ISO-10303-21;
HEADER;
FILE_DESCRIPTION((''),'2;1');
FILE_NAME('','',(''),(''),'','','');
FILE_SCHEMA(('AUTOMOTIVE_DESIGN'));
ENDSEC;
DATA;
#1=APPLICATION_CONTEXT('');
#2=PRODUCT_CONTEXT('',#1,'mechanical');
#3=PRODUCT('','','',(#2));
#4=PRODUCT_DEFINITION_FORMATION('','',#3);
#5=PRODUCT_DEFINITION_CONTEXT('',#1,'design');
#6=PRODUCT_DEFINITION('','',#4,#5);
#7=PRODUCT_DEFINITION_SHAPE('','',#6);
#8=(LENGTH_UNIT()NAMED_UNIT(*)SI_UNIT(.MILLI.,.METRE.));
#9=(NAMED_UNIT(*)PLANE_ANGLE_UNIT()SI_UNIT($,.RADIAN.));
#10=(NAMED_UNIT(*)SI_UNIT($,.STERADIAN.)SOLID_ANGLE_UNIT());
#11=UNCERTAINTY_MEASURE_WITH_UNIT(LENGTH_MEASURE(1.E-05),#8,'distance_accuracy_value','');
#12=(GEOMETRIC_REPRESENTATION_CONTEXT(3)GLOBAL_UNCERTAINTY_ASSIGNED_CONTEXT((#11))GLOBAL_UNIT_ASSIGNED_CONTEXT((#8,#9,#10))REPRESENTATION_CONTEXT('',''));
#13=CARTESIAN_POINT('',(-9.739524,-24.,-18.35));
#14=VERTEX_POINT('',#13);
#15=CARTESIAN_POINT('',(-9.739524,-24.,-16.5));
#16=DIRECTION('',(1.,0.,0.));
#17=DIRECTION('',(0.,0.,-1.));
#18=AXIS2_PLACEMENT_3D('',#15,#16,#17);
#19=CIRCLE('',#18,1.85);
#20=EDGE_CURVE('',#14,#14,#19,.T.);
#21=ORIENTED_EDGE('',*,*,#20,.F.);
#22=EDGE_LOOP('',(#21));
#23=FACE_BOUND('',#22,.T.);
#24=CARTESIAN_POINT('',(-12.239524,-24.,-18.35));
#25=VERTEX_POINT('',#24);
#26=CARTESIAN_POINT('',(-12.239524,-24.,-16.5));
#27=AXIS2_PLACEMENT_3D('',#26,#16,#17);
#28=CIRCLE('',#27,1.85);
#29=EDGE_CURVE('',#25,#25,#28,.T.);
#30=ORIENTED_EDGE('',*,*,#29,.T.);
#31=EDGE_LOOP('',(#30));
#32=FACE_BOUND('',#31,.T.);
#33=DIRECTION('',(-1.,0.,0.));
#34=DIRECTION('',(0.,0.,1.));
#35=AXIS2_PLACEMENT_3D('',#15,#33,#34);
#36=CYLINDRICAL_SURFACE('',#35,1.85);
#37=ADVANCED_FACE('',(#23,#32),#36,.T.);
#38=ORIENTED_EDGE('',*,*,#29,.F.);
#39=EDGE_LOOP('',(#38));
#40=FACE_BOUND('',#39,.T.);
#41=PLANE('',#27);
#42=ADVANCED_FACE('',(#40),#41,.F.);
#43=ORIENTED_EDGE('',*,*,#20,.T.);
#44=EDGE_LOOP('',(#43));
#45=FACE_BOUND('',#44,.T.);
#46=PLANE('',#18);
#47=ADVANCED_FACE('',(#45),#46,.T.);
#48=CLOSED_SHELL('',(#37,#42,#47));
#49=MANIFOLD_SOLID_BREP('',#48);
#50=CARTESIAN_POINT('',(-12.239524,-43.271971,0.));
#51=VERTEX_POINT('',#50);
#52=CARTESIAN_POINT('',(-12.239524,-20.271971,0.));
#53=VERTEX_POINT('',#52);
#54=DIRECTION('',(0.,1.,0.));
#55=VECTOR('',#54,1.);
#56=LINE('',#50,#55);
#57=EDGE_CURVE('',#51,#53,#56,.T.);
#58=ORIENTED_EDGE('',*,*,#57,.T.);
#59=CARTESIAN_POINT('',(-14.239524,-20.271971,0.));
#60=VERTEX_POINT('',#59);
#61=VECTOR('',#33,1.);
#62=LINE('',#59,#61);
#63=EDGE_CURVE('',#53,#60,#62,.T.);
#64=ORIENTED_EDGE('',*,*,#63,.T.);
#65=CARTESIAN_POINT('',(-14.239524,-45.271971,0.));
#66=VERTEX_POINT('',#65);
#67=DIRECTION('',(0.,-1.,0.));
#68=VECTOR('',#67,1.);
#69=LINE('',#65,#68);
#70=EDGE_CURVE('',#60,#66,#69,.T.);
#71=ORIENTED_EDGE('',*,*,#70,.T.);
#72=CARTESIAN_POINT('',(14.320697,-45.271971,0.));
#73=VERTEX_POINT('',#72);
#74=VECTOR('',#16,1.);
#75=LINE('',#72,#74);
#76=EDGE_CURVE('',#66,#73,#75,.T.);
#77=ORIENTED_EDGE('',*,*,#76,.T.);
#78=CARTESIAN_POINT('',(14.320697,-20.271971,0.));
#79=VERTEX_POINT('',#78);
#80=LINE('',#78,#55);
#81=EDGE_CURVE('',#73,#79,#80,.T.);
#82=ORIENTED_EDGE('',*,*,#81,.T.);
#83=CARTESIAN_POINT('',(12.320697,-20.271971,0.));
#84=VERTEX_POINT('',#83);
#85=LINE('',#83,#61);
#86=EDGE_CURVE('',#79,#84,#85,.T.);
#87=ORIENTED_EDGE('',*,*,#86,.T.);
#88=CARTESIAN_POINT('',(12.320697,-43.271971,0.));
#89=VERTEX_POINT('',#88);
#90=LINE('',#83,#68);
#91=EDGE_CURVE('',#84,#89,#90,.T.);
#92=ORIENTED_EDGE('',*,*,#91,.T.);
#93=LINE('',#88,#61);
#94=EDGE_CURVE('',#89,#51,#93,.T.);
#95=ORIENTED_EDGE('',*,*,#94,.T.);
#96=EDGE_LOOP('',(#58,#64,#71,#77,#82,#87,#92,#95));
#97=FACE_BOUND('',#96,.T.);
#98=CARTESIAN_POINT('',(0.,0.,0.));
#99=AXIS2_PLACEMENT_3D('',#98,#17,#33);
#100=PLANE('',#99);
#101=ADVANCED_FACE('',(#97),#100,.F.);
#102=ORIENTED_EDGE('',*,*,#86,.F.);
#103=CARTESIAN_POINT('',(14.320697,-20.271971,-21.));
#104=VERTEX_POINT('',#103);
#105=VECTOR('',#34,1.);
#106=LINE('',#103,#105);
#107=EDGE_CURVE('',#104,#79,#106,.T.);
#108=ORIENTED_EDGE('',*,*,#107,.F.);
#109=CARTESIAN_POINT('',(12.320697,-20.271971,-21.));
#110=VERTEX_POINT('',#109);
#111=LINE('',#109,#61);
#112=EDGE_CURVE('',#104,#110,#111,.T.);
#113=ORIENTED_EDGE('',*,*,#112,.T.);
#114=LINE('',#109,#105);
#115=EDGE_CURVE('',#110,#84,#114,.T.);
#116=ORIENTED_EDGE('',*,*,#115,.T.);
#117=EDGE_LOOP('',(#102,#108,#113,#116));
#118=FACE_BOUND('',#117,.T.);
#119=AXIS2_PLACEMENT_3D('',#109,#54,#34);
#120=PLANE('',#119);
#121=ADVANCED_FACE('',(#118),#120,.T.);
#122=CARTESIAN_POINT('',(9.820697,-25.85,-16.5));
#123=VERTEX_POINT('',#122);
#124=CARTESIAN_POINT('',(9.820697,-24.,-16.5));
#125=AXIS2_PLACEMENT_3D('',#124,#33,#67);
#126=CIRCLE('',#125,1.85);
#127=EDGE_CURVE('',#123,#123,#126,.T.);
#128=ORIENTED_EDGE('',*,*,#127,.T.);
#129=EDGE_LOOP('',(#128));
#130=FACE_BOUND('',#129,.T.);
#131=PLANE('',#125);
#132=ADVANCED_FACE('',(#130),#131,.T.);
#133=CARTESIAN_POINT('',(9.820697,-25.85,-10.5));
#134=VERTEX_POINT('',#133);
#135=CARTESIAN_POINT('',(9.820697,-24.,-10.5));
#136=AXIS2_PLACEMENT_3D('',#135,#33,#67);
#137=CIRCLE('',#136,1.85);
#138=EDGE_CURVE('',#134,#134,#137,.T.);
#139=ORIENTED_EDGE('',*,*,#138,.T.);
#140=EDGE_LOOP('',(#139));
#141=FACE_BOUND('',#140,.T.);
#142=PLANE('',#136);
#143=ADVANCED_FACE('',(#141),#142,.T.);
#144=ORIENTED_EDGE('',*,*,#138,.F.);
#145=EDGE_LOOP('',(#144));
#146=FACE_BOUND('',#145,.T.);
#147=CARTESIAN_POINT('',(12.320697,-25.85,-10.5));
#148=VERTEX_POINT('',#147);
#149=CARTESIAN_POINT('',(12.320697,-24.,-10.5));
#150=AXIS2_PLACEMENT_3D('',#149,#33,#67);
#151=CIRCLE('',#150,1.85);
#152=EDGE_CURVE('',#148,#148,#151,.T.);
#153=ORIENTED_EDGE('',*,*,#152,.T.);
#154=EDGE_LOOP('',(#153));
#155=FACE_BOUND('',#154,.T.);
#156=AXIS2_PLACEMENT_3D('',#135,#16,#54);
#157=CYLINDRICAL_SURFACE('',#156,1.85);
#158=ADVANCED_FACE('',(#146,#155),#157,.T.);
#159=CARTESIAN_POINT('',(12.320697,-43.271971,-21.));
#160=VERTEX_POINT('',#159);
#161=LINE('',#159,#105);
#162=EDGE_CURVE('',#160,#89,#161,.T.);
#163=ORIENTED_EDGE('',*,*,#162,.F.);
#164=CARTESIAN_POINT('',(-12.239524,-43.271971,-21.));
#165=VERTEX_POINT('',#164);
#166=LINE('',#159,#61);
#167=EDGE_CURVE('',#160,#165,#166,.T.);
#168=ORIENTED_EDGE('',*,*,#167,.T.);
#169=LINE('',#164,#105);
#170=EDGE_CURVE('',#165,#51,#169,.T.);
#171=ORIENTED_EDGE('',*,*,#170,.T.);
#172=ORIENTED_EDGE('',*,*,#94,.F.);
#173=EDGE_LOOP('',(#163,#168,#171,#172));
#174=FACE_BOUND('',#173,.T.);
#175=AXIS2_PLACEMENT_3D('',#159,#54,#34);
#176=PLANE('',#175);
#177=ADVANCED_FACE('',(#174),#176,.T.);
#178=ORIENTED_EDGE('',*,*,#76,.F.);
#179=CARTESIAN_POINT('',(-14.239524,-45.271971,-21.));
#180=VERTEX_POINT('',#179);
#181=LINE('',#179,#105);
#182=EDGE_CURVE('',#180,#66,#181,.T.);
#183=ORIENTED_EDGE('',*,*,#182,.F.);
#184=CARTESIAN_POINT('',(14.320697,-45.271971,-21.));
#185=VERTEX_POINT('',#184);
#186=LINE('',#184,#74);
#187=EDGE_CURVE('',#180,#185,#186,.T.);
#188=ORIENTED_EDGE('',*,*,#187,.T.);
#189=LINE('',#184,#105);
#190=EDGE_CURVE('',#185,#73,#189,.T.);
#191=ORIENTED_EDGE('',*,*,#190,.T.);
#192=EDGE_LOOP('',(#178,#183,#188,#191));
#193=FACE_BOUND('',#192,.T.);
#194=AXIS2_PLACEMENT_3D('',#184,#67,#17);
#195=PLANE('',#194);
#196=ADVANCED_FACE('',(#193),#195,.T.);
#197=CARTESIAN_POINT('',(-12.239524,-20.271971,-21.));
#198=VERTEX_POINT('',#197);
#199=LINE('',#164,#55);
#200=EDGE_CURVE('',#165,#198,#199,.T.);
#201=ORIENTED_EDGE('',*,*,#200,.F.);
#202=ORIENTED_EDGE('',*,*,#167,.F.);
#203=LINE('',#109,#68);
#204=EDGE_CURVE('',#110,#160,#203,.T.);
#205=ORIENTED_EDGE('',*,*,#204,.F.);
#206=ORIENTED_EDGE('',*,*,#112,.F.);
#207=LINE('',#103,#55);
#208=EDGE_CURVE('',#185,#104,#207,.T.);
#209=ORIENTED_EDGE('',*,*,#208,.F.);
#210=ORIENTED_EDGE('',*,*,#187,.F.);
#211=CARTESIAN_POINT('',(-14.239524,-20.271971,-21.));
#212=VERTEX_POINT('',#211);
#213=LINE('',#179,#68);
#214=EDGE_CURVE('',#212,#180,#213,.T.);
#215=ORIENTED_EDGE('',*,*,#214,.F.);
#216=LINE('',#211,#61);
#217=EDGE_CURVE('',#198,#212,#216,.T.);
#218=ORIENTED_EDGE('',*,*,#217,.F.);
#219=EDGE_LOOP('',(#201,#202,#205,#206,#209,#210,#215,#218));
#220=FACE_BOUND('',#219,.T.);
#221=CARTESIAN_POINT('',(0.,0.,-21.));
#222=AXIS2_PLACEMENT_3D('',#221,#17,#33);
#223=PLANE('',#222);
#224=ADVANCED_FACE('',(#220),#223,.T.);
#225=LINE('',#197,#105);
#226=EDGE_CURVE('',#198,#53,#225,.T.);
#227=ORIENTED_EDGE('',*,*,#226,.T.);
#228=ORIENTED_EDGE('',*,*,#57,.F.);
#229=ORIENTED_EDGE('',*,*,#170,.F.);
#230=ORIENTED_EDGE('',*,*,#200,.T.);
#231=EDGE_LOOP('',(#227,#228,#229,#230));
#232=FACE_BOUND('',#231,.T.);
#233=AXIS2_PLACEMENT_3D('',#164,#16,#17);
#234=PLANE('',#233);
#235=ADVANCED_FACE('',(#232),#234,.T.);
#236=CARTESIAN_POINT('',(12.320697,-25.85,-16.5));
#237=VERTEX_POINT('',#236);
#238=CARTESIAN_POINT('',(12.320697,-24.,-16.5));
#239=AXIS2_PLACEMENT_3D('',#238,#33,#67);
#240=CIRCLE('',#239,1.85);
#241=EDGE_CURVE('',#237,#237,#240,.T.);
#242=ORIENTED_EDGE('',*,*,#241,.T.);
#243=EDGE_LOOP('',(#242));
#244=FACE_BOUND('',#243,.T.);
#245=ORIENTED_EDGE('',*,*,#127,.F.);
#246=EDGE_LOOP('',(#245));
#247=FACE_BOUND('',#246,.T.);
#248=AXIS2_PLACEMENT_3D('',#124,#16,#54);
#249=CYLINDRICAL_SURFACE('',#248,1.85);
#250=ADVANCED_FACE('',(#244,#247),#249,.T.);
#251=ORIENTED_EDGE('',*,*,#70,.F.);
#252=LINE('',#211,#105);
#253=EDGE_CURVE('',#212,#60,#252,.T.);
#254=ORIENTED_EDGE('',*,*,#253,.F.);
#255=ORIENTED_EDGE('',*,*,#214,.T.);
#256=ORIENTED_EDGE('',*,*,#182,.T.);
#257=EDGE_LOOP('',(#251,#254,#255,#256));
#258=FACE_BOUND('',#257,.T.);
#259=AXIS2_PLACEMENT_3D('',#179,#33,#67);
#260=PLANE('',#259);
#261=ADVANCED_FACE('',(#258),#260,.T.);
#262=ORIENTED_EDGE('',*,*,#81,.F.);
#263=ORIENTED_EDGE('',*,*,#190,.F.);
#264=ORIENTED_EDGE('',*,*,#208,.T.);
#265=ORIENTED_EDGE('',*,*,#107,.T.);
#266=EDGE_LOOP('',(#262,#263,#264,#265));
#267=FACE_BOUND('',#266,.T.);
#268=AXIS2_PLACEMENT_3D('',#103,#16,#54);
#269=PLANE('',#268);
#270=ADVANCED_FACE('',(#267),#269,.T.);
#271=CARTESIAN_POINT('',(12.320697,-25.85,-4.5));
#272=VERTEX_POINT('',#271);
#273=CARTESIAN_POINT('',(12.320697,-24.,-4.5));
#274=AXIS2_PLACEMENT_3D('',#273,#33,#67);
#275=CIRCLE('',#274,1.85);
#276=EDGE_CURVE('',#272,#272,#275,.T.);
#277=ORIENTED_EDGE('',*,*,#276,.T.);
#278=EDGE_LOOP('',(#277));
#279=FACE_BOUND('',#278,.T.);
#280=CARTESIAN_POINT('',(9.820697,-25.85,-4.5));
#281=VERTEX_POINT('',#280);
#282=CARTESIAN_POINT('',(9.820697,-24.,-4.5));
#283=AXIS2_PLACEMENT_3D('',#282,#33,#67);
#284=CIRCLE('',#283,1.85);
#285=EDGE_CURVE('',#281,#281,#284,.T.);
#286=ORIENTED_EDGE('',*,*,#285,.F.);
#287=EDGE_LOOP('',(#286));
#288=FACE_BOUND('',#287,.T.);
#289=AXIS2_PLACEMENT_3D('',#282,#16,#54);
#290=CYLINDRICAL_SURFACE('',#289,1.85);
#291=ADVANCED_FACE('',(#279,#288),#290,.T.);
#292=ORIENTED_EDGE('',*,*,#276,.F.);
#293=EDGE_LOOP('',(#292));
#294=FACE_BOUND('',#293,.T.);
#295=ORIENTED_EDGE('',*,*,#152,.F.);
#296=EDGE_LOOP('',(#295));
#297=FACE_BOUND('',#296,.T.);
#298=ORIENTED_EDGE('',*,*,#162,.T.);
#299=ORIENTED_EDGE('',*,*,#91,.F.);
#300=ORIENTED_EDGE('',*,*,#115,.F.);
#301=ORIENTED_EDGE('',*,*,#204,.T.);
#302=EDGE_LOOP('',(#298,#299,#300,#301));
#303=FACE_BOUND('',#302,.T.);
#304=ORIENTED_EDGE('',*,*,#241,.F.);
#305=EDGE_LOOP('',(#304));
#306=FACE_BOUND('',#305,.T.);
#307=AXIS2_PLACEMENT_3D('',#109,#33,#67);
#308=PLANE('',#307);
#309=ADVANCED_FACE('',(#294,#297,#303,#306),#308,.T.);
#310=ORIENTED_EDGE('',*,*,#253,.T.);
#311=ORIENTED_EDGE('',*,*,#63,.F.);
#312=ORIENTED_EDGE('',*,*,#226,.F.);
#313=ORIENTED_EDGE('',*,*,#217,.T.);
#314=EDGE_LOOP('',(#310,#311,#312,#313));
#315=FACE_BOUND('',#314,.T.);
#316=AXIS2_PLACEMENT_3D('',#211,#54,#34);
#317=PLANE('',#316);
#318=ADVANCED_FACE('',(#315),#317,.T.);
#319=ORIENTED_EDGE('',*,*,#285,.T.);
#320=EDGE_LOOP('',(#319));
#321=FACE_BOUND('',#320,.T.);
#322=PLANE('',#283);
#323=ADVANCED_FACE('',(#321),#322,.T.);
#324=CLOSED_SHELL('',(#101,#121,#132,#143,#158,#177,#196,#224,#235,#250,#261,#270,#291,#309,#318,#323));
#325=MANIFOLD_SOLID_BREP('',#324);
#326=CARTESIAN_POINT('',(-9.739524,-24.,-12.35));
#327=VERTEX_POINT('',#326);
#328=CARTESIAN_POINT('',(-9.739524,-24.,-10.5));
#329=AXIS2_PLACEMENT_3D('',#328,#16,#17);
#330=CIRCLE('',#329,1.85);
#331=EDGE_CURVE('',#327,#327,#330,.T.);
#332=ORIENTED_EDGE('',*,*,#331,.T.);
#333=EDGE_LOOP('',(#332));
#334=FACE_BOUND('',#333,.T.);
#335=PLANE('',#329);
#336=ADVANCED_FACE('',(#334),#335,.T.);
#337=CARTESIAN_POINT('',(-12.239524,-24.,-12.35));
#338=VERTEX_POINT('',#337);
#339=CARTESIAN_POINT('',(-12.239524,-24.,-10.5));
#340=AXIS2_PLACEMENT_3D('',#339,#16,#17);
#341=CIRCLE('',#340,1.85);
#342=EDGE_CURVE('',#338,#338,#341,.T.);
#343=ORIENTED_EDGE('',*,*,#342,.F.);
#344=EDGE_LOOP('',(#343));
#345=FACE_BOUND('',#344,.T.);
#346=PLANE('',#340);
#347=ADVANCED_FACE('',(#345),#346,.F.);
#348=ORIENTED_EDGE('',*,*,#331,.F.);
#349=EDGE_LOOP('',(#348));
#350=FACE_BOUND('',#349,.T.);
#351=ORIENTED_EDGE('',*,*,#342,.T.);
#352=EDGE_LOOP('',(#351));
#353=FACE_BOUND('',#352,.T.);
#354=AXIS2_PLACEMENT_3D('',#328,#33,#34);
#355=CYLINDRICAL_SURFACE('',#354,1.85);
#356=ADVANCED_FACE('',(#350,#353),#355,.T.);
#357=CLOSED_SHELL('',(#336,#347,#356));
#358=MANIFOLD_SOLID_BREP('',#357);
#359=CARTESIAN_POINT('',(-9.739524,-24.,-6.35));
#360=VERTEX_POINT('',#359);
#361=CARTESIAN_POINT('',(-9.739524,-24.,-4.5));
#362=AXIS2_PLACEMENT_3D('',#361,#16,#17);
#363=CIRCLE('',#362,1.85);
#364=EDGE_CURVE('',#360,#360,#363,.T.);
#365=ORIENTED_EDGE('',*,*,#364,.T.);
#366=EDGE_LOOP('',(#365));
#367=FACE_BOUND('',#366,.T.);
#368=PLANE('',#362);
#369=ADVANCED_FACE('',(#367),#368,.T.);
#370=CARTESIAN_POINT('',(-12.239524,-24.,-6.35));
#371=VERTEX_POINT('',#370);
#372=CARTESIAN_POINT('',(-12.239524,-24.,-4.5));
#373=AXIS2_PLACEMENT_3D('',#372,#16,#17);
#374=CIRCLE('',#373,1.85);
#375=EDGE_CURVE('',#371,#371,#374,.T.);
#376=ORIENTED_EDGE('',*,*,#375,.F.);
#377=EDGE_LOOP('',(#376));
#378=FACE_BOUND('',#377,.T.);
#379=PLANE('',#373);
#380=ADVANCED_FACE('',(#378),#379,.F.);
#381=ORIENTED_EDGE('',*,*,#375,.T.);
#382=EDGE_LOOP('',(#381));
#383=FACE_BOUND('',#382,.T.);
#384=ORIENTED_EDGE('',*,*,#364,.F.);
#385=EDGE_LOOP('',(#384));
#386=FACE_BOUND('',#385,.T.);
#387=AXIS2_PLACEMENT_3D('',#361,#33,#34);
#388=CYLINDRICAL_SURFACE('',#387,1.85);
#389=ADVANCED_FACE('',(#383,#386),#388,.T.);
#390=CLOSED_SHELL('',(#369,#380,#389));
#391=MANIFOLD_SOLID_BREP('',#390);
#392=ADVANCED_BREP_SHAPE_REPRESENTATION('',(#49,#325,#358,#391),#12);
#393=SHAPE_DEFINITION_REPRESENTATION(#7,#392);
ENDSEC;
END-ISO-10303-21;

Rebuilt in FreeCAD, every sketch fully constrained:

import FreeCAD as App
import Part
import Sketcher

doc = App.newDocument("Part")
body = doc.addObject("PartDesign::Body", "Body")

sketch1 = doc.addObject("Sketcher::SketchObject", "Sketch")
body.addObject(sketch1)
sketch1.AttachmentSupport = (doc.XY_Plane, [""])
sketch1.MapMode = "FlatFace"
sketch1.addGeometry([
    Part.LineSegment(App.Vector(14.3, -20.3, 0), App.Vector(12.3, -20.3, 0)),
    Part.LineSegment(App.Vector(12.3, -20.3, 0), App.Vector(12.3, -43.3, 0)),
    Part.LineSegment(App.Vector(12.3, -43.3, 0), App.Vector(-12.2, -43.3, 0)),
    Part.LineSegment(App.Vector(-12.2, -43.3, 0), App.Vector(-12.2, -20.3, 0)),
    Part.LineSegment(App.Vector(-12.2, -20.3, 0), App.Vector(-14.2, -20.3, 0)),
    Part.LineSegment(App.Vector(-14.2, -20.3, 0), App.Vector(-14.2, -45.3, 0)),
    Part.LineSegment(App.Vector(-14.2, -45.3, 0), App.Vector(14.3, -45.3, 0)),
    Part.LineSegment(App.Vector(14.3, -45.3, 0), App.Vector(14.3, -20.3, 0)),
], False)
sketch1.addConstraint([
    Sketcher.Constraint("Coincident", 0, 2, 1, 1),
    Sketcher.Constraint("Coincident", 1, 2, 2, 1),
    Sketcher.Constraint("Coincident", 2, 2, 3, 1),
    Sketcher.Constraint("Coincident", 3, 2, 4, 1),
    Sketcher.Constraint("Coincident", 4, 2, 5, 1),
    Sketcher.Constraint("Coincident", 5, 2, 6, 1),
    Sketcher.Constraint("Coincident", 6, 2, 7, 1),
    Sketcher.Constraint("Coincident", 7, 2, 0, 1),
    Sketcher.Constraint("Horizontal", 0),
    Sketcher.Constraint("Vertical", 1),
    Sketcher.Constraint("Horizontal", 2),
    Sketcher.Constraint("Vertical", 3),
    Sketcher.Constraint("Horizontal", 4),
    Sketcher.Constraint("Vertical", 5),
    Sketcher.Constraint("Horizontal", 6),
    Sketcher.Constraint("Vertical", 7),
    Sketcher.Constraint("Horizontal", 0, 2, 3, 2),
    Sketcher.Constraint("Equal", 0, 4),
    Sketcher.Constraint("DistanceX", 0, 2, 0, 1, 2.0),
    Sketcher.Constraint("DistanceY", 1, 2, 1, 1, 23.0),
    Sketcher.Constraint("DistanceY", 5, 2, 5, 1, 25.0),
    Sketcher.Constraint("DistanceX", 2, 2, 2, 1, 24.560221),
    Sketcher.Constraint("DistanceY", 0, 2, -1, 1, 20.271971),
    Sketcher.Constraint("DistanceX", -1, 1, 0, 2, 12.320697),
])
pad1 = doc.addObject("PartDesign::Pad", "Pad")
body.addObject(pad1)
pad1.Profile = sketch1
pad1.Length = 21
pad1.Reversed = True

sketch2 = doc.addObject("Sketcher::SketchObject", "Sketch001")
body.addObject(sketch2)
sketch2.AttachmentSupport = (doc.YZ_Plane, [""])
sketch2.MapMode = "FlatFace"
sketch2.AttachmentOffset = App.Placement(App.Vector(0, 0, 12.320697), App.Rotation())
sketch2.addGeometry([
    Part.Circle(App.Vector(-24, -4.5, 0), App.Vector(0, 0, 1), 1.9),
    Part.Circle(App.Vector(-24, -10.5, 0), App.Vector(0, 0, 1), 1.9),
    Part.Circle(App.Vector(-24, -16.5, 0), App.Vector(0, 0, 1), 1.9),
], False)
sketch2.addConstraint([
    Sketcher.Constraint("Equal", 0, 1),
    Sketcher.Constraint("Equal", 1, 2),
    Sketcher.Constraint("Vertical", 0, 3, 1, 3),
    Sketcher.Constraint("Vertical", 1, 3, 2, 3),
    Sketcher.Constraint("Diameter", 0, 3.7),
    Sketcher.Constraint("DistanceX", 0, 3, -1, 1, 24.0),
    Sketcher.Constraint("DistanceY", 1, 3, 0, 3, 6.0),
    Sketcher.Constraint("DistanceY", 2, 3, 1, 3, 6.0),
    Sketcher.Constraint("DistanceY", 0, 3, -1, 1, 4.5),
])
pad2 = doc.addObject("PartDesign::Pad", "Pad001")
body.addObject(pad2)
pad2.Profile = sketch2
pad2.Length = 2.5
pad2.Reversed = True
body2 = doc.addObject("PartDesign::Body", "Body001")

sketch3 = doc.addObject("Sketcher::SketchObject", "Sketch002")
body2.addObject(sketch3)
sketch3.AttachmentSupport = (doc.getObject("YZ_Plane001"), [""])
sketch3.MapMode = "FlatFace"
sketch3.AttachmentOffset = App.Placement(App.Vector(0, 0, -12.239524), App.Rotation())
sketch3.addGeometry(Part.Circle(App.Vector(-24, -16.5, 0), App.Vector(0, 0, 1), 1.9), False)
sketch3.addConstraint([
    Sketcher.Constraint("Diameter", 0, 3.7),
    Sketcher.Constraint("DistanceX", 0, 3, -1, 1, 24.0),
    Sketcher.Constraint("DistanceY", 0, 3, -1, 1, 16.5),
])
pad3 = doc.addObject("PartDesign::Pad", "Pad002")
body2.addObject(pad3)
pad3.Profile = sketch3
pad3.Length = 2.5
body3 = doc.addObject("PartDesign::Body", "Body002")

sketch4 = doc.addObject("Sketcher::SketchObject", "Sketch003")
body3.addObject(sketch4)
sketch4.AttachmentSupport = (doc.getObject("YZ_Plane002"), [""])
sketch4.MapMode = "FlatFace"
sketch4.AttachmentOffset = App.Placement(App.Vector(0, 0, -12.239524), App.Rotation())
sketch4.addGeometry(Part.Circle(App.Vector(-24, -10.5, 0), App.Vector(0, 0, 1), 1.9), False)
sketch4.addConstraint([
    Sketcher.Constraint("Diameter", 0, 3.7),
    Sketcher.Constraint("DistanceX", 0, 3, -1, 1, 24.0),
    Sketcher.Constraint("DistanceY", 0, 3, -1, 1, 10.5),
])
pad4 = doc.addObject("PartDesign::Pad", "Pad003")
body3.addObject(pad4)
pad4.Profile = sketch4
pad4.Length = 2.5
body4 = doc.addObject("PartDesign::Body", "Body003")

sketch5 = doc.addObject("Sketcher::SketchObject", "Sketch004")
body4.addObject(sketch5)
sketch5.AttachmentSupport = (doc.getObject("YZ_Plane003"), [""])
sketch5.MapMode = "FlatFace"
sketch5.AttachmentOffset = App.Placement(App.Vector(0, 0, -12.239524), App.Rotation())
sketch5.addGeometry(Part.Circle(App.Vector(-24, -4.5, 0), App.Vector(0, 0, 1), 1.9), False)
sketch5.addConstraint([
    Sketcher.Constraint("Diameter", 0, 3.7),
    Sketcher.Constraint("DistanceX", 0, 3, -1, 1, 24.0),
    Sketcher.Constraint("DistanceY", 0, 3, -1, 1, 4.5),
])
pad5 = doc.addObject("PartDesign::Pad", "Pad004")
body4.addObject(pad5)
pad5.Profile = sketch5
pad5.Length = 2.5

doc.recompute()
